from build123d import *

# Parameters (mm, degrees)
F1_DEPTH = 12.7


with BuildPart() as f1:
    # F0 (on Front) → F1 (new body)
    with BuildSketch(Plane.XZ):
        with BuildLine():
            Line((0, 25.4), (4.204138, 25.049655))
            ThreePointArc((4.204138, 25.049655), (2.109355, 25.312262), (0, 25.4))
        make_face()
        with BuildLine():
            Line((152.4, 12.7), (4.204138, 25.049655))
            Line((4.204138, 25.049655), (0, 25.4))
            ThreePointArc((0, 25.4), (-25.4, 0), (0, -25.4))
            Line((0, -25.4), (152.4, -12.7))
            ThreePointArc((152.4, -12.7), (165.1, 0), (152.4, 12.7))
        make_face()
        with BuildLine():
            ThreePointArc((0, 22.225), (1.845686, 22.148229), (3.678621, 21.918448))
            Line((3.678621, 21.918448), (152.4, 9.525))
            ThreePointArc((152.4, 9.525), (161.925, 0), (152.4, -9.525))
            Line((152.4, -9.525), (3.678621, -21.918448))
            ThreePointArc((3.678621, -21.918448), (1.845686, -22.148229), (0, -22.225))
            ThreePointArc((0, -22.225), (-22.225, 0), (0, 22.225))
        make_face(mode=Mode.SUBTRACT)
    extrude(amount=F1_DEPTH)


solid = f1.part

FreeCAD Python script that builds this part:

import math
import FreeCAD as App
import Part
import Sketcher
from FreeCAD import Vector
Q = App.Units.Quantity

doc = App.newDocument("Part")
params = doc.addObject("Spreadsheet::Sheet", "Params")
for row, (alias, value) in enumerate([
    ("sketch1_radius", "1 in"),
    ("sketch1_radius2", "0.5 in"),
    ("sketch1_radius3", "0.875 in"),
    ("sketch1_radius4", "0.375 in"),
    ("pad1_length", "0.5 in"),
], start=1):
    params.set(f"A{row}", alias)
    params.set(f"B{row}", "=" + value)
    params.setAlias(f"B{row}", alias)

body = doc.addObject("PartDesign::Body", "Body")

sketch1 = body.newObject("Sketcher::SketchObject", "Sketch")
sketch1.AttachmentSupport = (doc.getObject("XZ_Plane"), [""])
sketch1.MapMode = "FlatFace"
sketch1.addGeometry([
    Part.ArcOfCircle(Part.Circle(Vector(0, 0, 0), Vector(0, 0, 1), 25.4), math.radians(80.47), math.radians(90)),
    Part.ArcOfCircle(Part.Circle(Vector(0, 0, 0), Vector(0, 0, 1), 25.4), math.radians(90), math.radians(270)),
    Part.LineSegment(Vector(0, -25.4, 0), Vector(152.4, -12.7, 0)),
    Part.ArcOfCircle(Part.Circle(Vector(152.4, 0, 0), Vector(0, 0, 1), 12.7), math.radians(-90), math.radians(90)),
    Part.LineSegment(Vector(152.4, 12.7, 0), Vector(4.2, 25, 0)),
    Part.ArcOfCircle(Part.Circle(Vector(0, 0, 0), Vector(0, 0, 1), 22.2), math.radians(90), math.radians(270)),
    Part.ArcOfCircle(Part.Circle(Vector(0, 0, 0), Vector(0, 0, 1), 22.2), math.radians(80.47), math.radians(90)),
    Part.LineSegment(Vector(3.7, 21.9, 0), Vector(152.4, 9.5, 0)),
    Part.ArcOfCircle(Part.Circle(Vector(152.4, 0, 0), Vector(0, 0, 1), 9.5), math.radians(-90), math.radians(90)),
    Part.LineSegment(Vector(152.4, -9.5, 0), Vector(3.7, -21.9, 0)),
    Part.ArcOfCircle(Part.Circle(Vector(0, 0, 0), Vector(0, 0, 1), 22.2), math.radians(-90), math.radians(-80.47)),
], False)
sketch1.addConstraint([
    Sketcher.Constraint("Tangent", 0, 2, 1, 1),
    Sketcher.Constraint("Coincident", 1, 2, 2, 1),
    Sketcher.Constraint("Coincident", 2, 2, 3, 1),
    Sketcher.Constraint("Coincident", 3, 2, 4, 1),
    Sketcher.Constraint("Coincident", 4, 2, 0, 1),
    Sketcher.Constraint("Tangent", 5, 1, 6, 2),
    Sketcher.Constraint("Coincident", 6, 1, 7, 1),
    Sketcher.Constraint("Coincident", 7, 2, 8, 2),
    Sketcher.Constraint("Coincident", 8, 1, 9, 1),
    Sketcher.Constraint("Coincident", 9, 2, 10, 2),
    Sketcher.Constraint("Tangent", 10, 1, 5, 2),
    Sketcher.Constraint("Coincident", 1, 3, -1, 1),
    Sketcher.Constraint("Coincident", 5, 3, -1, 1),
    Sketcher.Constraint("Coincident", 8, 3, 3, 3),
    Sketcher.Constraint("Equal", 6, 10),
    Sketcher.Constraint("Symmetric", 2, 2, 3, 2, -1),
    Sketcher.Constraint("PointOnObject", 0, 2, -2),
    Sketcher.Constraint("PointOnObject", 1, 2, -2),
    Sketcher.Constraint("PointOnObject", 5, 1, -2),
    Sketcher.Constraint("PointOnObject", 10, 1, -2),
    Sketcher.Constraint("Parallel", 4, 7),
    Sketcher.Constraint("Parallel", 2, 9),
    Sketcher.Constraint("Vertical", 8, 3, 2, 2),
    Sketcher.Constraint("Vertical", 3, 2, 7, 2),
    Sketcher.Constraint("Vertical", 7, 2, 8, 1),
    Sketcher.Constraint("Vertical", 6, 1, 9, 2),
    Sketcher.Constraint("Radius", 1, Q("1 in")),
    Sketcher.Constraint("Radius", 3, Q("0.5 in")),
    Sketcher.Constraint("DistanceX", -1, 1, 3, 3, Q("6 in")),
    Sketcher.Constraint("Radius", 5, Q("0.875 in")),
    Sketcher.Constraint("Radius", 8, Q("0.375 in")),
    Sketcher.Constraint("Radius", 6, 22.2251),
    Sketcher.Constraint("Radius", 0, 25.400056),
])
sketch1.setExpression("Constraints[26]", "Params.sketch1_radius")
sketch1.setExpression("Constraints[27]", "Params.sketch1_radius2")
sketch1.setExpression("Constraints[29]", "Params.sketch1_radius3")
sketch1.setExpression("Constraints[30]", "Params.sketch1_radius4")
pad1 = body.newObject("PartDesign::Pad", "Pad")
pad1.Profile = sketch1
pad1.setExpression("Length", "Params.pad1_length")

doc.recompute()
